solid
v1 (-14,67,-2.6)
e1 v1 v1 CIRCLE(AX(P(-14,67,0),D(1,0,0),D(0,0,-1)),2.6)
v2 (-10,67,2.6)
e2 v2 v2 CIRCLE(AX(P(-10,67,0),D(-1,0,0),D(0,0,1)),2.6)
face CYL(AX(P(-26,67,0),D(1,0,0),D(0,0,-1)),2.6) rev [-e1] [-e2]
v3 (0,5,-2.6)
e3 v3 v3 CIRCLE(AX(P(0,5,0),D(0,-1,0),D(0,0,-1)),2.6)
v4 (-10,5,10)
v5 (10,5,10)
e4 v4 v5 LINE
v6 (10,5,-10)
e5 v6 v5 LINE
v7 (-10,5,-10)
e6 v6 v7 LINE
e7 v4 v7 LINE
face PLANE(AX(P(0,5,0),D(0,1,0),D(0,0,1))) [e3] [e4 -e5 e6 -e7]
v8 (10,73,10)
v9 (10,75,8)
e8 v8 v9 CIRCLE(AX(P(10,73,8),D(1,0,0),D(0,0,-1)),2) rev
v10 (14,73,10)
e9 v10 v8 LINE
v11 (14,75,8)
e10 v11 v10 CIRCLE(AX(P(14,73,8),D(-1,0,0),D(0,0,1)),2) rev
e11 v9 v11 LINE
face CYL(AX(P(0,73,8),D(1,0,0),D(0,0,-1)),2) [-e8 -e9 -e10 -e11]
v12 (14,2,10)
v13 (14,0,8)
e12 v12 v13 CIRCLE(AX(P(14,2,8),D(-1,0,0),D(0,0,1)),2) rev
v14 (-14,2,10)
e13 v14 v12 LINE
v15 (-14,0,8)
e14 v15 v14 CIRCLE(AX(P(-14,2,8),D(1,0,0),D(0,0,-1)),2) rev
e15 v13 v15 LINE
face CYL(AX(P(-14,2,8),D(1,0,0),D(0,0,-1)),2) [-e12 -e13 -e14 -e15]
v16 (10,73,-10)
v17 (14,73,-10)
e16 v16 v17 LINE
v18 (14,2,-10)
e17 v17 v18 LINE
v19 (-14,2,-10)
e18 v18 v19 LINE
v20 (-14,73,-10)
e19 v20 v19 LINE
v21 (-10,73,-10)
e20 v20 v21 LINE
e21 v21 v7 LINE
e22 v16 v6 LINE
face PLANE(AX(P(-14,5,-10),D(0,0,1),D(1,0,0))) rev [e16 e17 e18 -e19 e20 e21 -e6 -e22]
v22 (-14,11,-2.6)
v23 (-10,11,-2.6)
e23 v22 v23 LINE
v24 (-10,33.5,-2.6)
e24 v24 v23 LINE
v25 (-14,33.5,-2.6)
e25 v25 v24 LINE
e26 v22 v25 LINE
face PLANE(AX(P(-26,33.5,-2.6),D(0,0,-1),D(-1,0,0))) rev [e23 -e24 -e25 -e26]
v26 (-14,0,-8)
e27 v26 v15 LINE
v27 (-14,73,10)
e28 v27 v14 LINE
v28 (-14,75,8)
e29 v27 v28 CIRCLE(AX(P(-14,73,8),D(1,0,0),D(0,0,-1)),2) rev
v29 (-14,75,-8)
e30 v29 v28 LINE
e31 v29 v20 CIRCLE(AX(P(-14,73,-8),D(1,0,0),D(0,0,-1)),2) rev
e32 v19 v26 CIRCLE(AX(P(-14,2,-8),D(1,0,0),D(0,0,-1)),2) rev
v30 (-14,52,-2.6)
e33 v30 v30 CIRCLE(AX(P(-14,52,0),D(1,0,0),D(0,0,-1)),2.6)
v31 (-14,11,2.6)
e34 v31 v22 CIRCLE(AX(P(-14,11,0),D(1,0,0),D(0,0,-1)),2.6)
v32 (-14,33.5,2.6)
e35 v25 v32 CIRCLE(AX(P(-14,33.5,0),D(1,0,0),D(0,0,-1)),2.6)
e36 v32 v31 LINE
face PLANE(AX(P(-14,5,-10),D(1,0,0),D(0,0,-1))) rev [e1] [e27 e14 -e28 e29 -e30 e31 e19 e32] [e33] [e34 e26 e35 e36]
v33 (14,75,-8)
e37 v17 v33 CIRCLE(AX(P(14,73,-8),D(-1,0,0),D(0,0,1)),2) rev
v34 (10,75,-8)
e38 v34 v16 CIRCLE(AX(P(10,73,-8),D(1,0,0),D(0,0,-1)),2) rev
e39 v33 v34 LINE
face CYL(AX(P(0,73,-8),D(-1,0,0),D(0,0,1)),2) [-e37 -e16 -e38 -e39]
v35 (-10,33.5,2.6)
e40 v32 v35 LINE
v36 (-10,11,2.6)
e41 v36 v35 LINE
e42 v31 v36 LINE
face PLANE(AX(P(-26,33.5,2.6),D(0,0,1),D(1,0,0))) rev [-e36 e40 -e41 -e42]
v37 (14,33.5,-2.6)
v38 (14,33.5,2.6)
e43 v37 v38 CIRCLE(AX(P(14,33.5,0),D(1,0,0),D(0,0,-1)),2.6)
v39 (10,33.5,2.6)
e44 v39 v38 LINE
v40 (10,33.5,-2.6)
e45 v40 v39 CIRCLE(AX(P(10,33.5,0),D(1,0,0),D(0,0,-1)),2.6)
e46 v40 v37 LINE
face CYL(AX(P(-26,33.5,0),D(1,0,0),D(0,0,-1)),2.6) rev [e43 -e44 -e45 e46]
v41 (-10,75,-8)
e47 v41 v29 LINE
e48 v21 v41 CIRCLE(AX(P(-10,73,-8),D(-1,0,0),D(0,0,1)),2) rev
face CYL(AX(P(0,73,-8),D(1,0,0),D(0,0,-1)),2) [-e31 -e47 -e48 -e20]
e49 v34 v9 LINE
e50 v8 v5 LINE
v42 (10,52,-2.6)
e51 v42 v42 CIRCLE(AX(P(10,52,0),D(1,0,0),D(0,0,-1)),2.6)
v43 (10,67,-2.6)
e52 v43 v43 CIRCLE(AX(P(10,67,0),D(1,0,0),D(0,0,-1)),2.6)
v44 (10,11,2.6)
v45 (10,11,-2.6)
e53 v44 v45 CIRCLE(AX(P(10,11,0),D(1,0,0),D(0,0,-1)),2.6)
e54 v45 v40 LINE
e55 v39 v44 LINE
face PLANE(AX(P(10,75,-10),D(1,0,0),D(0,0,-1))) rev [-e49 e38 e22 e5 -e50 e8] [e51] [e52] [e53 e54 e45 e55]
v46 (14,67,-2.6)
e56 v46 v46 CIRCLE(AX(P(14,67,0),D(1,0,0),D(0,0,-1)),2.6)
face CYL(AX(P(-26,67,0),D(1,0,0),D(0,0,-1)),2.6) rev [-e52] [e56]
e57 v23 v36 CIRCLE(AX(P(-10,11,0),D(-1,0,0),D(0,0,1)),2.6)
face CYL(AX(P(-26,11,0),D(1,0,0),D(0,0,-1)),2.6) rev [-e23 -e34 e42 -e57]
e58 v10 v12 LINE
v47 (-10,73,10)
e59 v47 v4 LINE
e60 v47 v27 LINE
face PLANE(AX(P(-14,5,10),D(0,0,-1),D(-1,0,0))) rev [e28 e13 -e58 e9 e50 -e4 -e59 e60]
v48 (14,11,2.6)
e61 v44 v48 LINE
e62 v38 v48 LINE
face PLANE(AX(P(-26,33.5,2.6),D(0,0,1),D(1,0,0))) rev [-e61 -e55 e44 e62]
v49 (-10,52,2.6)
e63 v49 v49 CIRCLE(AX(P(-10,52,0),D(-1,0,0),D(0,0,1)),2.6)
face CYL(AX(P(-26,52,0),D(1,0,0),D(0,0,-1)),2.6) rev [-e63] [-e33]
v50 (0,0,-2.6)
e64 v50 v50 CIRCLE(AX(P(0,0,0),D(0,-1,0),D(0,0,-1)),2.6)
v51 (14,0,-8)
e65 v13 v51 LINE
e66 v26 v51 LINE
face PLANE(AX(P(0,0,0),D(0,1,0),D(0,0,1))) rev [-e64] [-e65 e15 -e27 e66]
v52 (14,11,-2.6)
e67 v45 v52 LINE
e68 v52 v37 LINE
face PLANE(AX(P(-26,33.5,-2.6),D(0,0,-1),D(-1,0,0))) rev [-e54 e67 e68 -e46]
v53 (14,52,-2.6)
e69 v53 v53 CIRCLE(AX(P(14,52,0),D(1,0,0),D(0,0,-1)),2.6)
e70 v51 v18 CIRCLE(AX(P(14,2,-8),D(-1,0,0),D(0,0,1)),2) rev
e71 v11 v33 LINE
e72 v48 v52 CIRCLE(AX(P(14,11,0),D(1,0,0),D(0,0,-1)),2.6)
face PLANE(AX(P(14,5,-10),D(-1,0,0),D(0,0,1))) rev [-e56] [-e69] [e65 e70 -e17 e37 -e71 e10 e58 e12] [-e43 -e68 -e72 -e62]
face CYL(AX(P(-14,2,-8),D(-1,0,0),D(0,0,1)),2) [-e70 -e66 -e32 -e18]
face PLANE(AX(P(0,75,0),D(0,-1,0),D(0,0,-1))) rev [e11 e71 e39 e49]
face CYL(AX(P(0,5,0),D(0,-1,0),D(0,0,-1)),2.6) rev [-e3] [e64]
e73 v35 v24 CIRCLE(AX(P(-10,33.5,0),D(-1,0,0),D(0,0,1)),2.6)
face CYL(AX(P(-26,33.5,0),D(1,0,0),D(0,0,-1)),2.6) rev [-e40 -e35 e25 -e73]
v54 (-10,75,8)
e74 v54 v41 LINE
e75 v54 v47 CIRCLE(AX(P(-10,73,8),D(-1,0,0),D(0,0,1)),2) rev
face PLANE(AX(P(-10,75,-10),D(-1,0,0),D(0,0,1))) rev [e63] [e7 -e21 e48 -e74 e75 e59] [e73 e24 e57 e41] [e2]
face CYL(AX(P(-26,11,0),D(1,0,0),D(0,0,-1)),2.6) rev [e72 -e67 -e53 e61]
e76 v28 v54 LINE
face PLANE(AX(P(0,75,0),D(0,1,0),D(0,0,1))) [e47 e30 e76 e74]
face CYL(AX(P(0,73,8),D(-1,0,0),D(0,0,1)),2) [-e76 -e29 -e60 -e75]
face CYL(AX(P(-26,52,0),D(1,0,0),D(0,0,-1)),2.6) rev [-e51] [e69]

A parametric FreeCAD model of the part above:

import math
import FreeCAD as App
import Part
import Sketcher
from FreeCAD import Vector
Q = App.Units.Quantity


def edges_at(feature, points):
    """Names of the edges that pass closest to the given points."""
    edges = feature.Shape.Edges
    near = lambda p: min(range(len(edges)), key=lambda i: edges[i].distToShape(Part.Vertex(*p))[0])
    return sorted({f"Edge{near(p) + 1}" for p in points})


def add_polygon(sketch, points):
    """Adds a closed chain of lines whose ends are joined by coincident constraints."""
    first, n = sketch.GeometryCount, len(points)
    for a, b in zip(points, points[1:] + points[:1]):
        sketch.addGeometry(Part.LineSegment(App.Vector(*a, 0), App.Vector(*b, 0)), False)
    for i in range(n):
        sketch.addConstraint(Sketcher.Constraint("Coincident", first + i, 2, first + (i + 1) % n, 1))

doc = App.newDocument("Part")
body = doc.addObject("PartDesign::Body", "Body")

sketch1 = body.newObject("Sketcher::SketchObject", "Sketch")
sketch1.AttachmentSupport = (doc.getObject("XZ_Plane"), [""])
sketch1.MapMode = "FlatFace"
add_polygon(sketch1, [(-14, -10), (-14, 10), (14, 10), (14, -10)])
sketch1.addConstraint([
    Sketcher.Constraint("Vertical", 0),
    Sketcher.Constraint("Horizontal", 1),
    Sketcher.Constraint("Vertical", 2),
    Sketcher.Constraint("Horizontal", 3),
    Sketcher.Constraint("Symmetric", 0, 2, 2, 2, -1, 1),
    Sketcher.Constraint("DistanceX", 1, 1, 1, 2, Q("28 mm")),
    Sketcher.Constraint("DistanceY", 0, 1, 0, 2, Q("20 mm")),
])
pad1 = body.newObject("PartDesign::Pad", "Pad")
pad1.Profile = sketch1
pad1.Length = 5
pad1.Reversed = True

sketch2 = body.newObject("Sketcher::SketchObject", "Sketch001")
sketch2.AttachmentSupport = (doc.getObject("XZ_Plane"), [""])
sketch2.MapMode = "FlatFace"
sketch2.AttachmentOffset = App.Placement(Vector(0, 0, -5), App.Rotation())
add_polygon(sketch2, [(-14, -10), (-14, 10), (-10, 10), (-10, -10)])
add_polygon(sketch2, [(10, -10), (10, 10), (14, 10), (14, -10)])
sketch2.addConstraint([
    Sketcher.Constraint("Vertical", 0),
    Sketcher.Constraint("Horizontal", 1),
    Sketcher.Constraint("Vertical", 2),
    Sketcher.Constraint("Horizontal", 3),
    Sketcher.Constraint("Vertical", 4),
    Sketcher.Constraint("Horizontal", 5),
    Sketcher.Constraint("Vertical", 6),
    Sketcher.Constraint("Horizontal", 7),
    Sketcher.Constraint("Symmetric", 2, 2, 4, 2, -1, 1),
    Sketcher.Constraint("Symmetric", 0, 2, 6, 2, -1, 1),
    Sketcher.Constraint("Horizontal", 1, 2, 4, 2),
    Sketcher.Constraint("DistanceX", 1, 1, 1, 2, Q("4 mm")),
    Sketcher.Constraint("DistanceY", 0, 1, 0, 2, Q("20 mm")),
    Sketcher.Constraint("DistanceX", 0, 2, -1, 1, Q("14 mm")),
])
pad2 = body.newObject("PartDesign::Pad", "Pad001")
pad2.Profile = sketch2
pad2.Length = 70
pad2.Reversed = True

sketch3 = body.newObject("Sketcher::SketchObject", "Sketch002")
sketch3.AttachmentSupport = (doc.getObject("XZ_Plane"), [""])
sketch3.MapMode = "FlatFace"
sketch3.addGeometry(Part.Circle(Vector(0, 0, 0), Vector(0, 0, 1), 2.6), False)
sketch3.addConstraint([
    Sketcher.Constraint("Coincident", 0, 3, -1, 1),
    Sketcher.Constraint("Diameter", 0, Q("5.2 mm")),
])
pocket1 = body.newObject("PartDesign::Pocket", "Pocket")
pocket1.Profile = sketch3
pocket1.Length = 5

sketch4 = body.newObject("Sketcher::SketchObject", "Sketch003")
sketch4.AttachmentSupport = (doc.getObject("YZ_Plane"), [""])
sketch4.MapMode = "FlatFace"
sketch4.AttachmentOffset = App.Placement(Vector(0, 0, 14), App.Rotation())
sketch4.addGeometry([
    Part.Circle(Vector(67, 0, 0), Vector(0, 0, 1), 2.6),
    Part.Circle(Vector(52, 0, 0), Vector(0, 0, 1), 2.6),
    Part.LineSegment(Vector(11, -2.6, 0), Vector(33.5, -2.6, 0)),
    Part.ArcOfCircle(Part.Circle(Vector(33.5, 0, 0), Vector(0, 0, 1), 2.6), math.radians(-90), math.radians(90)),
    Part.LineSegment(Vector(33.5, 2.6, 0), Vector(11, 2.6, 0)),
    Part.ArcOfCircle(Part.Circle(Vector(11, 0, 0), Vector(0, 0, 1), 2.6), math.radians(90), math.radians(270)),
], False)
sketch4.addConstraint([
    Sketcher.Constraint("Tangent", 2, 2, 3, 1),
    Sketcher.Constraint("Tangent", 3, 2, 4, 1),
    Sketcher.Constraint("Tangent", 4, 2, 5, 1),
    Sketcher.Constraint("Tangent", 5, 2, 2, 1),
    Sketcher.Constraint("Horizontal", 2),
    Sketcher.Constraint("Horizontal", 4),
    Sketcher.Constraint("Equal", 0, 1),
    Sketcher.Constraint("Equal", 1, 3),
    Sketcher.Constraint("PointOnObject", 0, 3, -1),
    Sketcher.Constraint("PointOnObject", 1, 3, -1),
    Sketcher.Constraint("PointOnObject", 3, 3, -1),
    Sketcher.Constraint("Diameter", 0, Q("5.2 mm")),
    Sketcher.Constraint("DistanceX", 2, 1, 2, 2, Q("22.5 mm")),
    Sketcher.Constraint("DistanceX", -1, 1, 0, 3, Q("67 mm")),
    Sketcher.Constraint("DistanceX", -1, 1, 1, 3, Q("52 mm")),
    Sketcher.Constraint("DistanceX", -1, 1, 5, 3, Q("11 mm")),
])
pocket2 = body.newObject("PartDesign::Pocket", "Pocket001")
pocket2.Profile = sketch4
pocket2.Length = 40
doc.recompute()

fillet = body.newObject("PartDesign::Fillet", "Fillet")
fillet.Base = (pocket2, edges_at(pocket2, [
    (-12, 75, 10),
    (-12, 75, -10),
    (12, 75, -10),
    (12, 75, 10),
    (0, 0, 10),
    (0, 0, -10),
]))
fillet.Radius = 2

doc.recompute()
